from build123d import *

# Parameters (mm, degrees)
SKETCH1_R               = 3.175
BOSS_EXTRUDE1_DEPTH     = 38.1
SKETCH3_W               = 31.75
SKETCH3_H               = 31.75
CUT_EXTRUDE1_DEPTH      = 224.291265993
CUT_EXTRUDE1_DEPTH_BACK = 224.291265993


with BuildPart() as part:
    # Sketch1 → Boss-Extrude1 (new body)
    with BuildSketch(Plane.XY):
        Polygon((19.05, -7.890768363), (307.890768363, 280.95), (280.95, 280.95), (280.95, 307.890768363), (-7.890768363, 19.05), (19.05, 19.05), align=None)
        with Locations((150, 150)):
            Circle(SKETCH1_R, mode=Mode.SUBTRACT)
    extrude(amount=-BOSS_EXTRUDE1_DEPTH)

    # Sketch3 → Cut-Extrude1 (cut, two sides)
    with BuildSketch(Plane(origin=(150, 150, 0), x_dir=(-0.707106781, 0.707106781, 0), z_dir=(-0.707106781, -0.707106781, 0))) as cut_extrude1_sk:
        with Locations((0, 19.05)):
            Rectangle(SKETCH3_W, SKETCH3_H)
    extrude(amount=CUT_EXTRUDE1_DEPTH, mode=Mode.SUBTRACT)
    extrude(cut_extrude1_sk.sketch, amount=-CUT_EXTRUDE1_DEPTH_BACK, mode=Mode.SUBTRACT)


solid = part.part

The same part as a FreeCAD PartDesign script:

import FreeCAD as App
import Part
import Sketcher
Q = App.Units.Quantity


def add_polygon(sketch, points):
    """Adds a closed chain of lines whose ends are joined by coincident constraints."""
    first, n = sketch.GeometryCount, len(points)
    for a, b in zip(points, points[1:] + points[:1]):
        sketch.addGeometry(Part.LineSegment(App.Vector(*a, 0), App.Vector(*b, 0)), False)
    for i in range(n):
        sketch.addConstraint(Sketcher.Constraint("Coincident", first + i, 2, first + (i + 1) % n, 1))

doc = App.newDocument("Part")
body = doc.addObject("PartDesign::Body", "Body")

sketch1 = body.newObject("Sketcher::SketchObject", "Sketch")
sketch1.AttachmentSupport = (doc.getObject("XY_Plane"), [""])
sketch1.MapMode = "FlatFace"
add_polygon(sketch1, [(19.05, -7.890768), (307.890768, 280.95), (280.95, 280.95), (280.95, 307.890768), (-7.890768, 19.05), (19.05, 19.05)])
sketch1.addGeometry(Part.Circle(App.Vector(150, 150, 0), App.Vector(0, 0, 1), 3.175), False)
sketch1.addConstraint(Sketcher.Constraint("Horizontal", 1))
sketch1.addConstraint(Sketcher.Constraint("Vertical", 2))
sketch1.addConstraint(Sketcher.Constraint("Horizontal", 4))
sketch1.addConstraint(Sketcher.Constraint("Vertical", 5))
sketch1.addConstraint(Sketcher.Constraint("Parallel", 0, 3))
sketch1.addConstraint(Sketcher.Constraint("Equal", 1, 4))
sketch1.addConstraint(Sketcher.Constraint("Equal", 4, 2))
sketch1.addConstraint(Sketcher.Constraint("Diameter", 6, Q("0.25 in")))
sketch1.addConstraint(Sketcher.Constraint("Angle", 0, Q("45 deg")))
sketch1.addConstraint(Sketcher.Constraint("DistanceY", -1, 1, 3, 2, Q("0.75 in")))
sketch1.addConstraint(Sketcher.Constraint("DistanceX", -1, 1, 4, 2, Q("0.75 in")))
sketch1.addConstraint(Sketcher.Constraint("DistanceX", 1, 2, 1, 1, 26.940768))
sketch1.addConstraint(Sketcher.Constraint("DistanceX", -1, 1, 6, 3, 150.0))
sketch1.addConstraint(Sketcher.Constraint("DistanceY", -1, 1, 6, 3, 150.0))
sketch1.addConstraint(Sketcher.Constraint("DistanceY", -1, 1, 0, 2, 280.95))
pad1 = body.newObject("PartDesign::Pad", "Pad")
pad1.Profile = sketch1
pad1.Length = Q("1.5 in")
pad1.Reversed = True

sketch2 = body.newObject("Sketcher::SketchObject", "Sketch001")
sketch2.Placement = App.Placement(App.Vector(150, 150, 0), App.Rotation(App.Vector(-0.707106781, 0.707106781, 0), App.Vector(0, 0, -0.999999999), App.Vector(-0.707106781, -0.707106781, 0), "ZXY"))
add_polygon(sketch2, [(-15.875, 34.925), (-15.875, 3.175), (15.875, 3.175), (15.875, 34.925)])
sketch2.addConstraint(Sketcher.Constraint("Vertical", 0))
sketch2.addConstraint(Sketcher.Constraint("Horizontal", 1))
sketch2.addConstraint(Sketcher.Constraint("Vertical", 2))
sketch2.addConstraint(Sketcher.Constraint("Horizontal", 3))
sketch2.addConstraint(Sketcher.Constraint("Equal", 3, 0))
sketch2.addConstraint(Sketcher.Constraint("DistanceX", 1, 1, 1, 2, Q("1.25 in")))
sketch2.addConstraint(Sketcher.Constraint("DistanceX", 0, 2, -1, 1, Q("0.625 in")))
sketch2.addConstraint(Sketcher.Constraint("DistanceY", -1, 1, 0, 2, Q("0.125 in")))
pocket1 = body.newObject("PartDesign::Pocket", "Pocket")
pocket1.Profile = sketch2
pocket1.Type = "ThroughAll"
pocket1.Midplane = True

doc.recompute()
